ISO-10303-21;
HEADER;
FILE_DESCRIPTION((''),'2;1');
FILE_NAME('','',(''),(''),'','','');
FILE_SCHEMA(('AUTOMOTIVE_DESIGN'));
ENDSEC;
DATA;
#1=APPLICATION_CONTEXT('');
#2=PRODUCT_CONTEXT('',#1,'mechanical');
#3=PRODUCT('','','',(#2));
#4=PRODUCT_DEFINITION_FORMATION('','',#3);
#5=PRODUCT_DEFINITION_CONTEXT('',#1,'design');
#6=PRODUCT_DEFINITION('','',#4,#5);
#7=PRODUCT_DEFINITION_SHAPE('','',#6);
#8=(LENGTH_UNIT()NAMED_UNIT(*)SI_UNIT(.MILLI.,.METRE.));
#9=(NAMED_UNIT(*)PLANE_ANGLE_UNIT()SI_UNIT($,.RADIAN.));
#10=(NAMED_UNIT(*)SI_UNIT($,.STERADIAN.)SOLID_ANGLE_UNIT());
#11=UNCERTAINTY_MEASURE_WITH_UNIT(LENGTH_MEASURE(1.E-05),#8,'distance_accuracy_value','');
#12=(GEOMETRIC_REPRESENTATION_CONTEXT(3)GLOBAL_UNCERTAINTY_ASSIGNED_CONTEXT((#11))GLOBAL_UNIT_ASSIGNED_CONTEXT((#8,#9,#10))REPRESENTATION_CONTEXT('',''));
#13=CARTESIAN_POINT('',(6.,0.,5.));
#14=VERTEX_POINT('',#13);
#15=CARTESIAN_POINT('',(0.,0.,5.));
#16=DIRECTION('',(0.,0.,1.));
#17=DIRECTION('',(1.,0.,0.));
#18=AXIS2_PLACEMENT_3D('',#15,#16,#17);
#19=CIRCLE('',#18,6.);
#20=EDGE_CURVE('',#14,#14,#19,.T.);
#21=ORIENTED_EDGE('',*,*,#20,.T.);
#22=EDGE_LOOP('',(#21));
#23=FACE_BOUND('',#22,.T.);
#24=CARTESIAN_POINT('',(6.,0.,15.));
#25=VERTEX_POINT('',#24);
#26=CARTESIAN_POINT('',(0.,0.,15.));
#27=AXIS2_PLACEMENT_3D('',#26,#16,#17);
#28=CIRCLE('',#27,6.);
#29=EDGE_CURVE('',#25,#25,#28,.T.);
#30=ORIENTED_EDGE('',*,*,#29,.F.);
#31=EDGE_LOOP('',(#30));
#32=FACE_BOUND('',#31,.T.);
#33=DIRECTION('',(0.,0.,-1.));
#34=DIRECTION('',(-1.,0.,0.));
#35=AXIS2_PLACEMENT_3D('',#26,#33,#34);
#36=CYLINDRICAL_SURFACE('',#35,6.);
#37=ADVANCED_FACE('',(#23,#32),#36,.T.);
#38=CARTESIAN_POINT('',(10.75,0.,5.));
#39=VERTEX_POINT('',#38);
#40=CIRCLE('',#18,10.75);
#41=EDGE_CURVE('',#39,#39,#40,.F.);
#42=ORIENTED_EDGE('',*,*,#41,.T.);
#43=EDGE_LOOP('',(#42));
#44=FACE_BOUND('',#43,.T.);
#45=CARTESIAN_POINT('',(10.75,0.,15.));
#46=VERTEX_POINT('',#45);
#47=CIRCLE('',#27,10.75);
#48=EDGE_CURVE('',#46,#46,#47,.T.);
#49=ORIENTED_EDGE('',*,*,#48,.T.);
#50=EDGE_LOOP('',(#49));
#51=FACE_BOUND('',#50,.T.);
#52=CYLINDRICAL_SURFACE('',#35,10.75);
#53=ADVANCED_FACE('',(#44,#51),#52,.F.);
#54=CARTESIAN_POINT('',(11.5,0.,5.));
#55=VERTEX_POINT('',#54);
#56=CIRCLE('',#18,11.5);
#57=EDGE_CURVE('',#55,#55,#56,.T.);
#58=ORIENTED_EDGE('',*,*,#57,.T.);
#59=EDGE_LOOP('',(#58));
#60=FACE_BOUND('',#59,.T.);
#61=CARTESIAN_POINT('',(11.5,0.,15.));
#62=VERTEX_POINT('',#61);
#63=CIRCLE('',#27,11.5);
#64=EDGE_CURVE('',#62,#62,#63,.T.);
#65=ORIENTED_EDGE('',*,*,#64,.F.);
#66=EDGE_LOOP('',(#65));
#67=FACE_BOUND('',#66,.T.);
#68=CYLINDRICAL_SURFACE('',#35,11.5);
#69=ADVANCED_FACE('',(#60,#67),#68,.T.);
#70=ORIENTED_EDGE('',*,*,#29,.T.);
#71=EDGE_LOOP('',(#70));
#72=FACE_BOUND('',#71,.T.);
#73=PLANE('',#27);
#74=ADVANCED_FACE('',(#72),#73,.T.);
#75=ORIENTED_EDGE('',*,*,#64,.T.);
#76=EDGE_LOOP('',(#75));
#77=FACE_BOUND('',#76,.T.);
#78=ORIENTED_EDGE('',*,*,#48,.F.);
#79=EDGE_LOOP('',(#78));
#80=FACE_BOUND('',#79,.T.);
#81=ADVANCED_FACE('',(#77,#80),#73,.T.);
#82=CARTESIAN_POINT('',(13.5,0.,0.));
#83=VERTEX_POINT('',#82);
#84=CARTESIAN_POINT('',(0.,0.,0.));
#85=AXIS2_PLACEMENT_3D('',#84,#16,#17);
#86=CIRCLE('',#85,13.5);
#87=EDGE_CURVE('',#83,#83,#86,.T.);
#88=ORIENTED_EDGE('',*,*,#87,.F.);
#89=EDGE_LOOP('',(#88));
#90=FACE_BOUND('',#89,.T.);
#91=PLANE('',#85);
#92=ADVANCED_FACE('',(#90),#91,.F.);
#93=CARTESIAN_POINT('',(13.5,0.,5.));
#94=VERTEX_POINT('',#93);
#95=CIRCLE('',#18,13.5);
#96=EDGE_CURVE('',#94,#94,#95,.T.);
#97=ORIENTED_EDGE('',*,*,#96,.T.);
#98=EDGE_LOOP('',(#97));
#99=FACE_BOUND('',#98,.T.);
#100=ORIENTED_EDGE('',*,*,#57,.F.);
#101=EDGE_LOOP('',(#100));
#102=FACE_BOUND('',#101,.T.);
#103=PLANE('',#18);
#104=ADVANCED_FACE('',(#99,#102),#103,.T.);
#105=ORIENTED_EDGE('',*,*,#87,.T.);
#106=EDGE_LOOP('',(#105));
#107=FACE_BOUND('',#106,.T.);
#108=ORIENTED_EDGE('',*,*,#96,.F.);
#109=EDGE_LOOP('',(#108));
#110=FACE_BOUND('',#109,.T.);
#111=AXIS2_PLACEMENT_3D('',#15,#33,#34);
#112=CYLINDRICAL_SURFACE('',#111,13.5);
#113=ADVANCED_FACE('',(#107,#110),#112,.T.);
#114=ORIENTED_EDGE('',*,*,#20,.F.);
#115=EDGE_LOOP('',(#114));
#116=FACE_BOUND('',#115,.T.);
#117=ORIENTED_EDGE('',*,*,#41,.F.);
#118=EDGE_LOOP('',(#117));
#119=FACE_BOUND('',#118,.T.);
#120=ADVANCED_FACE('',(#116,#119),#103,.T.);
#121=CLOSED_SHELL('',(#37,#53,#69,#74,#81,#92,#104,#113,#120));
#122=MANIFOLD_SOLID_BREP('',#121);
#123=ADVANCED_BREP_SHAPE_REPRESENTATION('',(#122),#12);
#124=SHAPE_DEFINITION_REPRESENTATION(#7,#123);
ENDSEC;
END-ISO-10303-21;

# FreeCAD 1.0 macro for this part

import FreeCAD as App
import Part
import Sketcher

V = App.Vector
Q = App.Units.Quantity

doc = App.newDocument("Part")
body = doc.addObject("PartDesign::Body", "Body")

sketch1 = body.newObject("Sketcher::SketchObject", "Sketch")
sketch1.AttachmentSupport = (doc.getObject("XY_Plane"), [""])
sketch1.MapMode = "FlatFace"
sketch1.addGeometry(Part.Circle(V(0, 0, 0), V(0, 0, 1), 14), False)
sketch1.addConstraint(Sketcher.Constraint("Coincident", 0, 3, -1, 1))
sketch1.addConstraint(Sketcher.Constraint("Diameter", 0, Q("27 mm")))
pad1 = body.newObject("PartDesign::Pad", "Pad")
pad1.Profile = sketch1
pad1.Length = 5

sketch2 = body.newObject("Sketcher::SketchObject", "Sketch001")
sketch2.AttachmentSupport = (doc.getObject("XY_Plane"), [""])
sketch2.MapMode = "FlatFace"
sketch2.AttachmentOffset = App.Placement(V(0, 0, 5), App.Rotation())
sketch2.addGeometry(Part.Circle(V(0, 0, 0), V(0, 0, 1), 12), False)
sketch2.addGeometry(Part.Circle(V(0, 0, 0), V(0, 0, 1), 11), False)
sketch2.addConstraint(Sketcher.Constraint("Coincident", 0, 3, -1, 1))
sketch2.addConstraint(Sketcher.Constraint("Coincident", 1, 3, -1, 1))
sketch2.addConstraint(Sketcher.Constraint("Diameter", 0, Q("23 mm")))
sketch2.addConstraint(Sketcher.Constraint("Diameter", 1, Q("21.5 mm")))
pad2 = body.newObject("PartDesign::Pad", "Pad001")
pad2.Profile = sketch2
pad2.Length = 10

sketch3 = body.newObject("Sketcher::SketchObject", "Sketch002")
sketch3.AttachmentSupport = (doc.getObject("XY_Plane"), [""])
sketch3.MapMode = "FlatFace"
sketch3.AttachmentOffset = App.Placement(V(0, 0, 5), App.Rotation())
sketch3.addGeometry(Part.Circle(V(0, 0, 0), V(0, 0, 1), 6), False)
sketch3.addConstraint(Sketcher.Constraint("Coincident", 0, 3, -1, 1))
sketch3.addConstraint(Sketcher.Constraint("Diameter", 0, Q("12 mm")))
pad3 = body.newObject("PartDesign::Pad", "Pad002")
pad3.Profile = sketch3
pad3.Length = 10

doc.recompute()
